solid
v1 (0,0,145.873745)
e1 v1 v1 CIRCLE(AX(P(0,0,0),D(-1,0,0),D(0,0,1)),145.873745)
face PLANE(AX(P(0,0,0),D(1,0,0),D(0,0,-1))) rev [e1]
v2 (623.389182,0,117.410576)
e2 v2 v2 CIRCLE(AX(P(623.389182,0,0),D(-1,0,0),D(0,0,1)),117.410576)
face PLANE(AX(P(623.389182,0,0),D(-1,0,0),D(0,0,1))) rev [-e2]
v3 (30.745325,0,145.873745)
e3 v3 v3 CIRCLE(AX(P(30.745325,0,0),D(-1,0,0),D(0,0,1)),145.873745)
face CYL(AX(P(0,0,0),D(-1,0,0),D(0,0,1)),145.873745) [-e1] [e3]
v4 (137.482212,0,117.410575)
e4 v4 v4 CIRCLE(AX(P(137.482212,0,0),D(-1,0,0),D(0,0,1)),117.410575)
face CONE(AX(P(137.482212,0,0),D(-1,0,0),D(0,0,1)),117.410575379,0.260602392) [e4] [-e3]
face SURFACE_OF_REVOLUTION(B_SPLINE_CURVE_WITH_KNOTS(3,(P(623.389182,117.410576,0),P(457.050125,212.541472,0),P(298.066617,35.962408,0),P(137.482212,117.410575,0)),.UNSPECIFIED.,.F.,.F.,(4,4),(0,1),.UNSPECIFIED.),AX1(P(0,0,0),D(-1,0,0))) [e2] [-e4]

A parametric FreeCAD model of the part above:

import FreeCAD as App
import Part
import Sketcher
from FreeCAD import Vector

doc = App.newDocument("Part")
params = doc.addObject("Spreadsheet::Sheet", "Params")
for row, (alias, value) in enumerate([
    ("revolution_angle", "360 deg"),
], start=1):
    params.set(f"A{row}", alias)
    params.set(f"B{row}", "=" + value)
    params.setAlias(f"B{row}", alias)

body = doc.addObject("PartDesign::Body", "Body")

# Sketch on XY plane
sketch1 = body.newObject("Sketcher::SketchObject", "Sketch")
sketch1.AttachmentSupport = (doc.getObject("XY_Plane"), [""])
sketch1.MapMode = "FlatFace"
sketch1.addGeometry([
    Part.LineSegment(Vector(0, 145.873745, 0), Vector(0, 0, 0)),  # 0
    Part.LineSegment(Vector(0, 0, 0), Vector(623.389182, 0, 0)),  # 1
    Part.LineSegment(Vector(623.389182, 0, 0), Vector(623.389182, 117.410576, 0)),  # 2
    Part.BSplineCurve([Vector(137.482212, 117.410575, 0), Vector(298.066617, 35.962408, 0), Vector(457.050125, 212.541472, 0), Vector(623.389182, 117.410576, 0)], [4, 4], [0, 1], False, 3, [1, 1, 1, 1], False),  # 3
    Part.LineSegment(Vector(137.482212, 117.410575, 0), Vector(30.745325, 145.873745, 0)),  # 4
    Part.LineSegment(Vector(30.745325, 145.873745, 0), Vector(0, 145.873745, 0)),  # 5
], False)
sketch1.addConstraint([
    Sketcher.Constraint("Block", 3),
    Sketcher.Constraint("Coincident", 0, 2, 1, 1),
    Sketcher.Constraint("Coincident", 1, 2, 2, 1),
    Sketcher.Constraint("Coincident", 2, 2, 3, 2),
    Sketcher.Constraint("Coincident", 3, 1, 4, 1),
    Sketcher.Constraint("Coincident", 4, 2, 5, 1),
    Sketcher.Constraint("Coincident", 5, 2, 0, 1),
    Sketcher.Constraint("Vertical", 0),
    Sketcher.Constraint("Horizontal", 1),
    Sketcher.Constraint("Vertical", 2),
    Sketcher.Constraint("Horizontal", 5),
    Sketcher.Constraint("Coincident", 0, 2, -1, 1),
    Sketcher.Constraint("DistanceX", 5, 2, 5, 1, 30.745325),
    Sketcher.Constraint("DistanceY", 0, 2, 0, 1, 145.873745),
])
revolution = body.newObject("PartDesign::Revolution", "Revolution")
revolution.Profile = sketch1
revolution.ReferenceAxis = (sketch1, ["H_Axis"])
revolution.setExpression("Angle", "Params.revolution_angle")

doc.recompute()
